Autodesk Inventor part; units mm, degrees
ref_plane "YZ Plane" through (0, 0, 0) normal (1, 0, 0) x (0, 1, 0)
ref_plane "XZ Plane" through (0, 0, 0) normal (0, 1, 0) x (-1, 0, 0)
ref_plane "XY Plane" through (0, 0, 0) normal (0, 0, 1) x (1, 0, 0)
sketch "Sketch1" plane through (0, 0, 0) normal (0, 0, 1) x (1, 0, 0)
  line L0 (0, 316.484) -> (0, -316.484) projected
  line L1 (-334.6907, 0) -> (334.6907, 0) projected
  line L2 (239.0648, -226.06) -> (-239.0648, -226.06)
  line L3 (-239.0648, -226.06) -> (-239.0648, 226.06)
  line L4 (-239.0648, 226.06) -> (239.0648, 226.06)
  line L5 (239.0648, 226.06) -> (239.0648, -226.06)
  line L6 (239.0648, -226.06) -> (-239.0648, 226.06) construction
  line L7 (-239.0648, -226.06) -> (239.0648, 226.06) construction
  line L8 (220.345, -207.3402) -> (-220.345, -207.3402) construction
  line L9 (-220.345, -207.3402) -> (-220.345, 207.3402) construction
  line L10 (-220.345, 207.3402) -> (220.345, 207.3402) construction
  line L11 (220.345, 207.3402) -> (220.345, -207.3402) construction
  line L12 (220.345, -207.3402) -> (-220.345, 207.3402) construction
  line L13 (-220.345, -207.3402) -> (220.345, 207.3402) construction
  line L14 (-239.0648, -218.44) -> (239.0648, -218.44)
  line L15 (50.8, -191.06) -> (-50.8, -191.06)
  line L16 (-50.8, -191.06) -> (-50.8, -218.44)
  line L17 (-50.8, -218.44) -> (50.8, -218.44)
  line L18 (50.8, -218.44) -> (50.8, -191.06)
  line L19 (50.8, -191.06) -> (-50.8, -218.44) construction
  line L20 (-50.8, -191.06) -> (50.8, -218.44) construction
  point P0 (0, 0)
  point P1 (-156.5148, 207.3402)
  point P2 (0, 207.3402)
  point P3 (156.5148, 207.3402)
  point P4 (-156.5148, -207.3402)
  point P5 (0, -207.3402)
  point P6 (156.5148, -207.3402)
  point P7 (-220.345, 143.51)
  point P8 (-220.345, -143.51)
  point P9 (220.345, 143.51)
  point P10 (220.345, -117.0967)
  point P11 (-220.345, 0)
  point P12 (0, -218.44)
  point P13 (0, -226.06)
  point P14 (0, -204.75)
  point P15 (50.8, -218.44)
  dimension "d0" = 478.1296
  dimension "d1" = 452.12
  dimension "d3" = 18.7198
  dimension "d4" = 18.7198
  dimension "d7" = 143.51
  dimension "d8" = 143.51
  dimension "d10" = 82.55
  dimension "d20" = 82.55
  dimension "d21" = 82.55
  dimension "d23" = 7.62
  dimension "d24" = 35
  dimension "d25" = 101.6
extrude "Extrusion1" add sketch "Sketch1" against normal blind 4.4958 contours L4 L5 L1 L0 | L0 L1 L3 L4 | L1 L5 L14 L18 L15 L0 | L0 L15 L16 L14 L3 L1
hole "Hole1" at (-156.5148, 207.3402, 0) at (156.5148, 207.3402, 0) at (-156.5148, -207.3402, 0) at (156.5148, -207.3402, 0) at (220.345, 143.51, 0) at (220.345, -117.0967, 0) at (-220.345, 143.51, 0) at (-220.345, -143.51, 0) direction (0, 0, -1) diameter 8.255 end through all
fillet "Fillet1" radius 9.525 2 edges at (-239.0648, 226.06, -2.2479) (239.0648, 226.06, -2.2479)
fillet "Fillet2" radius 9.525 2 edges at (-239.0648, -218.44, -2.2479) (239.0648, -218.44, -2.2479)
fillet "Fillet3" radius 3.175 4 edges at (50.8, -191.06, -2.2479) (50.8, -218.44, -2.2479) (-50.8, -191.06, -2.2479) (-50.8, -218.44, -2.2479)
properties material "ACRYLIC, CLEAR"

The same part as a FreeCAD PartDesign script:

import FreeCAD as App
import Part
import Sketcher
from FreeCAD import Vector
Q = App.Units.Quantity


def edges_at(feature, points):
    """Names of the edges that pass closest to the given points."""
    edges = feature.Shape.Edges
    near = lambda p: min(range(len(edges)), key=lambda i: edges[i].distToShape(Part.Vertex(*p))[0])
    return sorted({f"Edge{near(p) + 1}" for p in points})


def add_polygon(sketch, points):
    """Adds a closed chain of lines whose ends are joined by coincident constraints."""
    first, n = sketch.GeometryCount, len(points)
    for a, b in zip(points, points[1:] + points[:1]):
        sketch.addGeometry(Part.LineSegment(App.Vector(*a, 0), App.Vector(*b, 0)), False)
    for i in range(n):
        sketch.addConstraint(Sketcher.Constraint("Coincident", first + i, 2, first + (i + 1) % n, 1))

doc = App.newDocument("Part")
body = doc.addObject("PartDesign::Body", "Body")

# Sketch on XY plane
sketch1 = body.newObject("Sketcher::SketchObject", "Sketch")
sketch1.AttachmentSupport = (doc.getObject("XY_Plane"), [""])
sketch1.MapMode = "FlatFace"
add_polygon(sketch1, [(239.0648, 226.06), (-239.0648, 226.06), (-239.0648, -218.44), (-50.8, -218.44), (-50.8, -191.06), (50.8, -191.06), (50.8, -218.44), (239.0648, -218.44)])  # lines 0-7
sketch1.addConstraint([
    Sketcher.Constraint("Horizontal", 0),
    Sketcher.Constraint("Vertical", 1),
    Sketcher.Constraint("Horizontal", 2),
    Sketcher.Constraint("Vertical", 3),
    Sketcher.Constraint("Horizontal", 4),
    Sketcher.Constraint("Vertical", 5),
    Sketcher.Constraint("Horizontal", 6),
    Sketcher.Constraint("Vertical", 7),
    Sketcher.Constraint("Symmetric", 2, 2, 5, 2, -2),
    Sketcher.Constraint("Equal", 2, 6),
    Sketcher.Constraint("DistanceX", 4, 1, 4, 2, Q("4 in")),
    Sketcher.Constraint("DistanceX", 0, 2, 0, 1, Q("18.824 in")),
    Sketcher.Constraint("DistanceY", 1, 2, 1, 1, Q("17.5 in")),
    Sketcher.Constraint("DistanceY", -1, 1, 0, 2, Q("8.9 in")),
    Sketcher.Constraint("DistanceY", 3, 1, 3, 2, 27.38),
])
pad1 = body.newObject("PartDesign::Pad", "Pad")
pad1.Profile = sketch1
pad1.Length = Q("0.177 in")
pad1.Reversed = True

# Sketch on XY plane
sketch2 = body.newObject("Sketcher::SketchObject", "Sketch001")
sketch2.AttachmentSupport = (doc.getObject("XY_Plane"), [""])
sketch2.MapMode = "FlatFace"
sketch2.addGeometry([
    Part.Circle(Vector(-156.5148, 207.3402, 0), Vector(0, 0, 1), 4.1275),  # 0
    Part.Circle(Vector(156.5148, 207.3402, 0), Vector(0, 0, 1), 4.1275),  # 1
    Part.Circle(Vector(-156.5148, -207.3402, 0), Vector(0, 0, 1), 4.1275),  # 2
    Part.Circle(Vector(156.5148, -207.3402, 0), Vector(0, 0, 1), 4.1275),  # 3
    Part.Circle(Vector(220.345, 143.51, 0), Vector(0, 0, 1), 4.1275),  # 4
    Part.Circle(Vector(220.345, -117.0967, 0), Vector(0, 0, 1), 4.1275),  # 5
    Part.Circle(Vector(-220.345, 143.51, 0), Vector(0, 0, 1), 4.1275),  # 6
    Part.Circle(Vector(-220.345, -143.51, 0), Vector(0, 0, 1), 4.1275),  # 7
], False)
sketch2.addConstraint([
    Sketcher.Constraint("Equal", 0, 1),
    Sketcher.Constraint("Equal", 1, 2),
    Sketcher.Constraint("Equal", 2, 3),
    Sketcher.Constraint("Equal", 3, 4),
    Sketcher.Constraint("Equal", 4, 5),
    Sketcher.Constraint("Equal", 5, 6),
    Sketcher.Constraint("Equal", 6, 7),
    Sketcher.Constraint("Symmetric", 1, 3, 2, 3, -1, 1),
    Sketcher.Constraint("Symmetric", 0, 3, 3, 3, -1, 1),
    Sketcher.Constraint("Symmetric", 4, 3, 7, 3, -1, 1),
    Sketcher.Constraint("Symmetric", 0, 3, 1, 3, -2),
    Sketcher.Constraint("Symmetric", 4, 3, 6, 3, -2),
    Sketcher.Constraint("Vertical", 4, 3, 5, 3),
    Sketcher.Constraint("Diameter", 0, Q("0.325 in")),
    Sketcher.Constraint("DistanceY", 7, 3, 6, 3, Q("11.3 in")),
    Sketcher.Constraint("DistanceX", 6, 3, 4, 3, Q("17.35 in")),
    Sketcher.Constraint("DistanceX", 0, 3, -1, 1, Q("6.162 in")),
    Sketcher.Constraint("DistanceY", -1, 1, 0, 3, Q("8.163 in")),
    Sketcher.Constraint("DistanceY", 5, 3, -1, 1, Q("4.6101 in")),
])
doc.recompute()
hole = body.newObject("PartDesign::Hole", "Hole")
hole.Profile = sketch2
hole.ThreadType = "None"
hole.Diameter = Q("0.325 in")
hole.DepthType = "ThroughAll"
doc.recompute()

fillet = body.newObject("PartDesign::Fillet", "Fillet")
fillet.Base = (hole, edges_at(hole, [(-239.065, 226.06, -2.248), (239.065, 226.06, -2.248)]))
fillet.Radius = Q("0.375 in")
doc.recompute()

fillet2 = body.newObject("PartDesign::Fillet", "Fillet001")
fillet2.Base = (fillet, edges_at(fillet, [(-239.065, -218.44, -2.248), (239.065, -218.44, -2.248)]))
fillet2.Radius = Q("0.375 in")
doc.recompute()

fillet3 = body.newObject("PartDesign::Fillet", "Fillet002")
fillet3.Base = (fillet2, edges_at(fillet2, [
    (50.8, -191.06, -2.248),
    (50.8, -218.44, -2.248),
    (-50.8, -191.06, -2.248),
    (-50.8, -218.44, -2.248),
]))
fillet3.Radius = Q("0.125 in")

doc.recompute()
